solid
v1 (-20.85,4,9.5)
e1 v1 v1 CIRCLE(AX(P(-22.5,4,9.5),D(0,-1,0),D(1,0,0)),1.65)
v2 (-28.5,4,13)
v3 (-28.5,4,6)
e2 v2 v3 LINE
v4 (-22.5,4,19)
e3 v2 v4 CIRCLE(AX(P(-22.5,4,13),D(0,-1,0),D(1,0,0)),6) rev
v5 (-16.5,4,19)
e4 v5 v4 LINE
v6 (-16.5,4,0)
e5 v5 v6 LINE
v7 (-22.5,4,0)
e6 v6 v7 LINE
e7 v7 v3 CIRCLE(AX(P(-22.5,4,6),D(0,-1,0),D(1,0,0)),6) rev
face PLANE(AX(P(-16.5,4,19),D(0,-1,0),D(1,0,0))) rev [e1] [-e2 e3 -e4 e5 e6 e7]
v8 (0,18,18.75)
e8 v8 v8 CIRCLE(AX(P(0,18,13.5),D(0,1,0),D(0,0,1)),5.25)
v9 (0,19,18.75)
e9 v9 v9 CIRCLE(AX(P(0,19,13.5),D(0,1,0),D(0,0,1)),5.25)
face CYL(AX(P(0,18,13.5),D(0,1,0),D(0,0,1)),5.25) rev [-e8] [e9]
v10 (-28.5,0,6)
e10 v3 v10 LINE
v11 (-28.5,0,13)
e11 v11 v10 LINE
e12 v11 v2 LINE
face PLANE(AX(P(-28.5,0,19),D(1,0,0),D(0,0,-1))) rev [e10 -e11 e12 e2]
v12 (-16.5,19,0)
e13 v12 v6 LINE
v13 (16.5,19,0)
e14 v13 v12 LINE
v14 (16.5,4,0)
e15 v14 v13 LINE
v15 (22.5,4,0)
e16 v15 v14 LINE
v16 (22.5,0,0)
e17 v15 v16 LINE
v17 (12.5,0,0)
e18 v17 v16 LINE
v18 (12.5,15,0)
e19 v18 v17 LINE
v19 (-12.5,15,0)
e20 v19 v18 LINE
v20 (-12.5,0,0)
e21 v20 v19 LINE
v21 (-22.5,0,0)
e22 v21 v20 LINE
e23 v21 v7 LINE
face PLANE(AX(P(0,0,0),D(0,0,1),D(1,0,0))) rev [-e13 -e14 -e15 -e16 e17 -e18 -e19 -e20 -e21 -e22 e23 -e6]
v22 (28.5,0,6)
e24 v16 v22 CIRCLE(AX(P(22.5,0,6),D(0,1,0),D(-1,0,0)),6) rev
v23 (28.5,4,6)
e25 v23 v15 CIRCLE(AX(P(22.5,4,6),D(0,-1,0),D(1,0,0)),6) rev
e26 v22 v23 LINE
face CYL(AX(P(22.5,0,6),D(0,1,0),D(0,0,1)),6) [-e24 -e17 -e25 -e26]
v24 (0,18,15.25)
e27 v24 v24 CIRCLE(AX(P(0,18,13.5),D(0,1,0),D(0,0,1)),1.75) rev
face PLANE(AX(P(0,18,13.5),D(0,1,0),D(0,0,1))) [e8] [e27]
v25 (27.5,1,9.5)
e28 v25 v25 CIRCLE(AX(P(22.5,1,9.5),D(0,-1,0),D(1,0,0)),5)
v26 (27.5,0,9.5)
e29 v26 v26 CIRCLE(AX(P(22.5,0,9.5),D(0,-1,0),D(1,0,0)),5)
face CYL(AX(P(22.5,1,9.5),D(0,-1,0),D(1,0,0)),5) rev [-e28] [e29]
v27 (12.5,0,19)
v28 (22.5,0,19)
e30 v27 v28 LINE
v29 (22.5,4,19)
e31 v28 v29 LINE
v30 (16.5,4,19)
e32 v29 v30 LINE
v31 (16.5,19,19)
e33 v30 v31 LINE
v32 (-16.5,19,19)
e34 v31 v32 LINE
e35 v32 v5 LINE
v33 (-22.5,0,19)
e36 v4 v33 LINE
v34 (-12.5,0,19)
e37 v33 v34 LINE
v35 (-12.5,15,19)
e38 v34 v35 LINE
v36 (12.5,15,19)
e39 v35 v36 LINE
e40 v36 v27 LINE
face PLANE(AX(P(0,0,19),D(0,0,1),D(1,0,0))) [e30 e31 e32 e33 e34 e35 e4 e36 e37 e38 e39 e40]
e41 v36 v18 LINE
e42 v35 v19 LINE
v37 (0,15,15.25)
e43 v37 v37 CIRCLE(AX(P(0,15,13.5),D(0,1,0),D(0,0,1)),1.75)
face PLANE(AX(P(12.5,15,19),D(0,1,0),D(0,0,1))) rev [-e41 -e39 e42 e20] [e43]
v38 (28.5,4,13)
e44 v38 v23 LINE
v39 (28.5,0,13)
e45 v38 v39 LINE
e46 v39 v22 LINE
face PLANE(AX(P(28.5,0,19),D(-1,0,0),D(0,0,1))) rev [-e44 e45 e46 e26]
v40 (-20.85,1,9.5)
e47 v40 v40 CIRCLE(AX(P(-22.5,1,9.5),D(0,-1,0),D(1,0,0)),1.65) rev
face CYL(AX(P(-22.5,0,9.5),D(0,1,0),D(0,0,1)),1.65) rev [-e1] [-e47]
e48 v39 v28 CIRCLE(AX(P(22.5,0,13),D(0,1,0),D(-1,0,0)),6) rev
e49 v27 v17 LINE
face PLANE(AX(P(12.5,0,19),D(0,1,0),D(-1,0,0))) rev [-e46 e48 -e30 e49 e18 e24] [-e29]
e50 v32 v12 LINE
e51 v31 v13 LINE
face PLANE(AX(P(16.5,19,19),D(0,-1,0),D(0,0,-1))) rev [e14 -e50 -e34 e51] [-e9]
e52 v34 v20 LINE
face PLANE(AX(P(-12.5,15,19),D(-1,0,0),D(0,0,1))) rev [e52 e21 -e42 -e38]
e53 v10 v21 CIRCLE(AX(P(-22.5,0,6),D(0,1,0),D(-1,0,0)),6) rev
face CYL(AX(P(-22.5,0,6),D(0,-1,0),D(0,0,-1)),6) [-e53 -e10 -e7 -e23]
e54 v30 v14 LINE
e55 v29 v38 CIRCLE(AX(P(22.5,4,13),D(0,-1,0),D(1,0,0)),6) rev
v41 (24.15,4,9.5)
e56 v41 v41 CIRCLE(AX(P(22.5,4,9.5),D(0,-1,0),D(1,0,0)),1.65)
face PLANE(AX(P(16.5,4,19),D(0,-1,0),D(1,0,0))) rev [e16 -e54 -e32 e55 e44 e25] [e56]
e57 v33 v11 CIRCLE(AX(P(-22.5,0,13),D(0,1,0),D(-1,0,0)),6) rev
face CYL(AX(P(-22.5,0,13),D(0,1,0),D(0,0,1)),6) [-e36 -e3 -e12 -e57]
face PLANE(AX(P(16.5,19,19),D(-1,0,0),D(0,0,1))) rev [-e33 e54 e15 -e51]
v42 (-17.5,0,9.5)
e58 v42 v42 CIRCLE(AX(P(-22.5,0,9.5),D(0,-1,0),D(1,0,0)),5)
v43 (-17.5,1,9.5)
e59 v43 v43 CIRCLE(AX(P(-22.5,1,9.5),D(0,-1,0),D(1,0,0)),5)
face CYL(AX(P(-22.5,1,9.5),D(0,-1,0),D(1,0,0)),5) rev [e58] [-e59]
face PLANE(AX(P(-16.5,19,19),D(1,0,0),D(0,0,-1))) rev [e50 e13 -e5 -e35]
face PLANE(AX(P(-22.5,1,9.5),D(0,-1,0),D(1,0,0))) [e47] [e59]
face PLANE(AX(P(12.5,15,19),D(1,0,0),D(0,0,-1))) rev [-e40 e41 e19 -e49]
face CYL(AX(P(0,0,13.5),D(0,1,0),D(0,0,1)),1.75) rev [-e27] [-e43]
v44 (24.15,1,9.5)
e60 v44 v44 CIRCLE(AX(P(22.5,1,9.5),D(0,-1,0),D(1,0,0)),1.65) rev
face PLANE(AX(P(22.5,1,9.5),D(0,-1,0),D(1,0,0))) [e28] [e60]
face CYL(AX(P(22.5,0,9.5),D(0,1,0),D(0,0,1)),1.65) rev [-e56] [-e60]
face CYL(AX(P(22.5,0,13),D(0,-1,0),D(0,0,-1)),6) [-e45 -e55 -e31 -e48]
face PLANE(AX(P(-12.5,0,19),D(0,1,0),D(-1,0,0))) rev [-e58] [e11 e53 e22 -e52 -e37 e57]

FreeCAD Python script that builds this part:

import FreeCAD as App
import Part
import Sketcher
from FreeCAD import Vector
Q = App.Units.Quantity


def edges_at(feature, points):
    """Names of the edges that pass closest to the given points."""
    edges = feature.Shape.Edges
    near = lambda p: min(range(len(edges)), key=lambda i: edges[i].distToShape(Part.Vertex(*p))[0])
    return sorted({f"Edge{near(p) + 1}" for p in points})


def add_polygon(sketch, points):
    """Adds a closed chain of lines whose ends are joined by coincident constraints."""
    first, n = sketch.GeometryCount, len(points)
    for a, b in zip(points, points[1:] + points[:1]):
        sketch.addGeometry(Part.LineSegment(App.Vector(*a, 0), App.Vector(*b, 0)), False)
    for i in range(n):
        sketch.addConstraint(Sketcher.Constraint("Coincident", first + i, 2, first + (i + 1) % n, 1))

doc = App.newDocument("Part")
body = doc.addObject("PartDesign::Body", "Body")

# Sketch on XY plane
sketch1 = body.newObject("Sketcher::SketchObject", "Sketch")
sketch1.AttachmentSupport = (doc.getObject("XY_Plane"), [""])
sketch1.MapMode = "FlatFace"
add_polygon(sketch1, [(-12.5, 15), (12.5, 15), (12.5, 0), (28.5, 0), (28.5, 4), (16.5, 4), (16.5, 19), (-16.5, 19), (-16.5, 4), (-28.5, 4), (-28.5, 0), (-12.5, 0)])  # lines 0-11
sketch1.addConstraint([
    Sketcher.Constraint("Horizontal", 0),
    Sketcher.Constraint("Vertical", 1),
    Sketcher.Constraint("Horizontal", 2),
    Sketcher.Constraint("Vertical", 3),
    Sketcher.Constraint("Horizontal", 4),
    Sketcher.Constraint("Vertical", 5),
    Sketcher.Constraint("Horizontal", 6),
    Sketcher.Constraint("Vertical", 7),
    Sketcher.Constraint("Horizontal", 8),
    Sketcher.Constraint("Vertical", 9),
    Sketcher.Constraint("Horizontal", 10),
    Sketcher.Constraint("Vertical", 11),
    Sketcher.Constraint("Symmetric", 2, 2, 9, 2, -1, 1),
    Sketcher.Constraint("Symmetric", 4, 2, 7, 2, -2),
    Sketcher.Constraint("Symmetric", 1, 2, 10, 2, -2),
    Sketcher.Constraint("Equal", 1, 5),
    Sketcher.Constraint("DistanceX", 0, 1, 0, 2, Q("25 mm")),
    Sketcher.Constraint("DistanceX", 2, 1, 2, 2, Q("16 mm")),
    Sketcher.Constraint("DistanceX", 4, 2, 4, 1, Q("12 mm")),
    Sketcher.Constraint("DistanceY", 1, 2, 1, 1, Q("15 mm")),
    Sketcher.Constraint("DistanceY", 3, 1, 3, 2, Q("4 mm")),
])
pad1 = body.newObject("PartDesign::Pad", "Pad")
pad1.Profile = sketch1
pad1.Length = 19

# Sketch on XZ plane
sketch2 = body.newObject("Sketcher::SketchObject", "Sketch001")
sketch2.AttachmentSupport = (doc.getObject("XZ_Plane"), [""])
sketch2.MapMode = "FlatFace"
sketch2.AttachmentOffset = App.Placement(Vector(0, 0, -19), App.Rotation())
sketch2.addGeometry([
    Part.Circle(Vector(0, 13.5, 0), Vector(0, 0, 1), 1.8),
    Part.Circle(Vector(-22.5, 9.5, 0), Vector(0, 0, 1), 1.6),
    Part.Circle(Vector(22.5, 9.5, 0), Vector(0, 0, 1), 1.6),
], False)
sketch2.addConstraint([
    Sketcher.Constraint("Equal", 1, 2),
    Sketcher.Constraint("Symmetric", 1, 3, 2, 3, -2),
    Sketcher.Constraint("PointOnObject", 0, 3, -2),
    Sketcher.Constraint("Diameter", 0, Q("3.5 mm")),
    Sketcher.Constraint("Diameter", 1, Q("3.3 mm")),
    Sketcher.Constraint("DistanceY", 1, 3, 0, 3, Q("4 mm")),
    Sketcher.Constraint("DistanceX", 1, 3, 2, 3, Q("45 mm")),
    Sketcher.Constraint("DistanceY", -1, 1, 0, 3, Q("13.5 mm")),
])
pocket1 = body.newObject("PartDesign::Pocket", "Pocket")
pocket1.Profile = sketch2
pocket1.Type = "ThroughAll"
pocket1.Midplane = True
doc.recompute()

fillet = body.newObject("PartDesign::Fillet", "Fillet")
fillet.Base = (pocket1, edges_at(pocket1, [
    (28.5, 2, 0),
    (-28.5, 2, 0),
    (-28.5, 2, 19),
    (28.5, 2, 19),
]))
fillet.Radius = 6

# Sketch on XZ plane
sketch3 = body.newObject("Sketcher::SketchObject", "Sketch002")
sketch3.AttachmentSupport = (doc.getObject("XZ_Plane"), [""])
sketch3.MapMode = "FlatFace"
sketch3.addGeometry([
    Part.Circle(Vector(-22, 10, 0), Vector(0, 0, 1), 5),
    Part.Circle(Vector(22, 10, 0), Vector(0, 0, 1), 5),
], False)
sketch3.addConstraint([
    Sketcher.Constraint("Equal", 0, 1),
    Sketcher.Constraint("Symmetric", 0, 3, 1, 3, -2),
    Sketcher.Constraint("Diameter", 0, Q("10 mm")),
    Sketcher.Constraint("DistanceX", 0, 3, 1, 3, Q("45 mm")),
    Sketcher.Constraint("DistanceY", -1, 1, 0, 3, Q("9.5 mm")),
])
pocket2 = body.newObject("PartDesign::Pocket", "Pocket001")
pocket2.Profile = sketch3
pocket2.Length = 1

# Sketch on XZ plane
sketch4 = body.newObject("Sketcher::SketchObject", "Sketch003")
sketch4.AttachmentSupport = (doc.getObject("XZ_Plane"), [""])
sketch4.MapMode = "FlatFace"
sketch4.AttachmentOffset = App.Placement(Vector(0, 0, -19), App.Rotation())
sketch4.addGeometry(Part.Circle(Vector(0, 14, 0), Vector(0, 0, 1), 5), False)
sketch4.addConstraint([
    Sketcher.Constraint("PointOnObject", 0, 3, -2),
    Sketcher.Constraint("Diameter", 0, Q("10.5 mm")),
    Sketcher.Constraint("DistanceY", -1, 1, 0, 3, Q("13.5 mm")),
])
pocket3 = body.newObject("PartDesign::Pocket", "Pocket002")
pocket3.Profile = sketch4
pocket3.Length = 1
pocket3.Reversed = True

doc.recompute()
